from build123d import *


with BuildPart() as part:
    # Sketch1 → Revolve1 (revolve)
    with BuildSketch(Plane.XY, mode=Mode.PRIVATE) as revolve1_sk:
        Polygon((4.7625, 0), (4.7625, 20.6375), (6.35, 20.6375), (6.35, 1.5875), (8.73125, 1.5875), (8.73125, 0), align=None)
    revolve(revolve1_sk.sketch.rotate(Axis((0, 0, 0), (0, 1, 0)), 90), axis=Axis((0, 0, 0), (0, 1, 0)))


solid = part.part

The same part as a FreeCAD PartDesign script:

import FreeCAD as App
import Part
import Sketcher

V = App.Vector
Q = App.Units.Quantity


def add_polygon(sketch, points):
    """Adds a closed chain of lines whose ends are joined by coincident constraints."""
    first, n = sketch.GeometryCount, len(points)
    for a, b in zip(points, points[1:] + points[:1]):
        sketch.addGeometry(Part.LineSegment(App.Vector(*a, 0), App.Vector(*b, 0)), False)
    for i in range(n):
        sketch.addConstraint(Sketcher.Constraint("Coincident", first + i, 2, first + (i + 1) % n, 1))

doc = App.newDocument("Part")
body = doc.addObject("PartDesign::Body", "Body")

# Sketch on XY plane
sketch1 = body.newObject("Sketcher::SketchObject", "Sketch")
sketch1.AttachmentSupport = (doc.getObject("XY_Plane"), [""])
sketch1.MapMode = "FlatFace"
add_polygon(sketch1, [(4.8, 20.6), (4.8, 0), (8.7, 0), (8.7, 1.6), (6.3, 1.6), (6.3, 20.6)])  # lines 0-5
sketch1.addConstraint(Sketcher.Constraint("Vertical", 0))
sketch1.addConstraint(Sketcher.Constraint("Horizontal", 1))
sketch1.addConstraint(Sketcher.Constraint("Vertical", 2))
sketch1.addConstraint(Sketcher.Constraint("Horizontal", 3))
sketch1.addConstraint(Sketcher.Constraint("Vertical", 4))
sketch1.addConstraint(Sketcher.Constraint("Horizontal", 5))
sketch1.addConstraint(Sketcher.Constraint("PointOnObject", 0, 2, -1))
sketch1.addConstraint(Sketcher.Constraint("Equal", 5, 2))
sketch1.addConstraint(Sketcher.Constraint("DistanceY", 4, 1, 4, 2, Q("0.75 in")))
sketch1.addConstraint(Sketcher.Constraint("DistanceX", 1, 1, 1, 2, Q("0.15625 in")))
sketch1.addConstraint(Sketcher.Constraint("DistanceX", 3, 2, 3, 1, Q("0.09375 in")))
sketch1.addConstraint(Sketcher.Constraint("DistanceX", -1, 1, 3, 2, Q("0.25 in")))
revolution = body.newObject("PartDesign::Revolution", "Revolution")
revolution.Profile = sketch1
revolution.ReferenceAxis = (sketch1, ["V_Axis"])
revolution.Angle = 360

doc.recompute()
